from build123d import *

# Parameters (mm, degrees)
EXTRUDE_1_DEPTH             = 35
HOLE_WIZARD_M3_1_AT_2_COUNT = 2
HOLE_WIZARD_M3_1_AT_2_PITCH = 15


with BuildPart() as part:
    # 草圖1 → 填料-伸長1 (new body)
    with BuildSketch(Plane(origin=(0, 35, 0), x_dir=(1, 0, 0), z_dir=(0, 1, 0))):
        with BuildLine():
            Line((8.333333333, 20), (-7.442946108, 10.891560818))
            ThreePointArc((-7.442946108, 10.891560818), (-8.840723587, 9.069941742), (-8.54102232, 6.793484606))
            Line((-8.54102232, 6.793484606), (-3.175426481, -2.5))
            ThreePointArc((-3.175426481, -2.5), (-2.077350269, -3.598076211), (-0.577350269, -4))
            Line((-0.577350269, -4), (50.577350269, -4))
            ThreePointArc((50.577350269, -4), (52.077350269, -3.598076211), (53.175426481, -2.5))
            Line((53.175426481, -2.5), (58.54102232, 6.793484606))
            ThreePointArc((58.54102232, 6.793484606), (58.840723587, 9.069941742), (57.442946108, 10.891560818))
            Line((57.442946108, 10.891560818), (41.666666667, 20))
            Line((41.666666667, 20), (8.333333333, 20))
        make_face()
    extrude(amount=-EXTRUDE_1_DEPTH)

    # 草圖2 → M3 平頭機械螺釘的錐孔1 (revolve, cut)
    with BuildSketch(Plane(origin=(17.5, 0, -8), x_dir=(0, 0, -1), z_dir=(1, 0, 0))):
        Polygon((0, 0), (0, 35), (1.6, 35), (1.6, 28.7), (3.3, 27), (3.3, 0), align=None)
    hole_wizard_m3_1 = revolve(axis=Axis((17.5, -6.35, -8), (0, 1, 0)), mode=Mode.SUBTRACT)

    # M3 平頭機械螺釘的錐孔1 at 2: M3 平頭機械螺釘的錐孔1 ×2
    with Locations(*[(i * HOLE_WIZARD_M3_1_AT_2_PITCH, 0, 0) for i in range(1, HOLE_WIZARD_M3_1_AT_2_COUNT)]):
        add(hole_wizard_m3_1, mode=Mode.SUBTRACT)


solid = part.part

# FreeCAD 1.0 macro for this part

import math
import FreeCAD as App
import Part
import Sketcher

V = App.Vector
Q = App.Units.Quantity


def add_polygon(sketch, points):
    """Adds a closed chain of lines whose ends are joined by coincident constraints."""
    first, n = sketch.GeometryCount, len(points)
    for a, b in zip(points, points[1:] + points[:1]):
        sketch.addGeometry(Part.LineSegment(App.Vector(*a, 0), App.Vector(*b, 0)), False)
    for i in range(n):
        sketch.addConstraint(Sketcher.Constraint("Coincident", first + i, 2, first + (i + 1) % n, 1))

doc = App.newDocument("Part")
body = doc.addObject("PartDesign::Body", "Body")

sketch1 = body.newObject("Sketcher::SketchObject", "Sketch")
sketch1.AttachmentSupport = (doc.getObject("XZ_Plane"), [""])
sketch1.MapMode = "FlatFace"
sketch1.AttachmentOffset = App.Placement(V(0, 0, -35), App.Rotation())
sketch1.addGeometry(Part.LineSegment(V(8.333333, -20, 0), V(-7.442946, -10.891561, 0)), False)
sketch1.addGeometry(Part.ArcOfCircle(Part.Circle(V(-5.942946, -8.293485, 0), V(0, 0, 1), 3), math.radians(150), math.radians(240)), False)
sketch1.addGeometry(Part.LineSegment(V(-8.541022, -6.793485, 0), V(-3.175426, 2.5, 0)), False)
sketch1.addGeometry(Part.ArcOfCircle(Part.Circle(V(-0.57735, 1, 0), V(0, 0, 1), 3), math.radians(90), math.radians(150)), False)
sketch1.addGeometry(Part.LineSegment(V(-0.57735, 4, 0), V(50.57735, 4, 0)), False)
sketch1.addGeometry(Part.ArcOfCircle(Part.Circle(V(50.57735, 1, 0), V(0, 0, 1), 3), math.radians(30), math.radians(90)), False)
sketch1.addGeometry(Part.LineSegment(V(53.175426, 2.5, 0), V(58.541022, -6.793485, 0)), False)
sketch1.addGeometry(Part.ArcOfCircle(Part.Circle(V(55.942946, -8.293485, 0), V(0, 0, 1), 3), math.radians(-60), math.radians(30)), False)
sketch1.addGeometry(Part.LineSegment(V(57.442946, -10.891561, 0), V(41.666667, -20, 0)), False)
sketch1.addGeometry(Part.LineSegment(V(41.666667, -20, 0), V(8.333333, -20, 0)), False)
sketch1.addConstraint(Sketcher.Constraint("Tangent", 0, 2, 1, 2))
sketch1.addConstraint(Sketcher.Constraint("Tangent", 1, 1, 2, 1))
sketch1.addConstraint(Sketcher.Constraint("Tangent", 2, 2, 3, 2))
sketch1.addConstraint(Sketcher.Constraint("Tangent", 3, 1, 4, 1))
sketch1.addConstraint(Sketcher.Constraint("Tangent", 4, 2, 5, 2))
sketch1.addConstraint(Sketcher.Constraint("Tangent", 5, 1, 6, 1))
sketch1.addConstraint(Sketcher.Constraint("Tangent", 6, 2, 7, 2))
sketch1.addConstraint(Sketcher.Constraint("Tangent", 7, 1, 8, 1))
sketch1.addConstraint(Sketcher.Constraint("Coincident", 8, 2, 9, 1))
sketch1.addConstraint(Sketcher.Constraint("Coincident", 9, 2, 0, 1))
sketch1.addConstraint(Sketcher.Constraint("Horizontal", 4))
sketch1.addConstraint(Sketcher.Constraint("Horizontal", 9))
sketch1.addConstraint(Sketcher.Constraint("Equal", 1, 3))
sketch1.addConstraint(Sketcher.Constraint("Equal", 3, 5))
sketch1.addConstraint(Sketcher.Constraint("Equal", 5, 7))
sketch1.addConstraint(Sketcher.Constraint("Perpendicular", 0, 2))
sketch1.addConstraint(Sketcher.Constraint("Perpendicular", 6, 8))
sketch1.addConstraint(Sketcher.Constraint("Horizontal", 1, 3, 7, 3))
sketch1.addConstraint(Sketcher.Constraint("Horizontal", 2, 2, 5, 1))
sketch1.addConstraint(Sketcher.Constraint("Radius", 1, Q("3 mm")))
sketch1.addConstraint(Sketcher.Constraint("Angle", 0, Q("150 deg")))
sketch1.addConstraint(Sketcher.Constraint("DistanceY", -1, 1, 3, 3, Q("1 mm")))
sketch1.addConstraint(Sketcher.Constraint("DistanceY", 8, 2, -1, 1, Q("20 mm")))
sketch1.addConstraint(Sketcher.Constraint("DistanceX", 4, 1, 4, 2, Q("51.154701 mm")))
sketch1.addConstraint(Sketcher.Constraint("Distance", 0, Q("18.216878 mm")))
sketch1.addConstraint(Sketcher.Constraint("DistanceX", 3, 3, -1, 1, Q("0.57735 mm")))
pad1 = body.newObject("PartDesign::Pad", "Pad")
pad1.Profile = sketch1
pad1.Length = 35

sketch2 = body.newObject("Sketcher::SketchObject", "Sketch001")
sketch2.AttachmentSupport = (doc.getObject("YZ_Plane"), [""])
sketch2.MapMode = "FlatFace"
sketch2.AttachmentOffset = App.Placement(V(0, 0, 17.5), App.Rotation())
add_polygon(sketch2, [(35, -8), (0, -8), (0, -11.3), (27, -11.3), (28.7, -9.6), (35, -9.6)])
sketch2.addGeometry(Part.LineSegment(V(0, -8, 0), V(35, -8, 0)), True)
sketch2.addConstraint(Sketcher.Constraint("Horizontal", 0))
sketch2.addConstraint(Sketcher.Constraint("Vertical", 1))
sketch2.addConstraint(Sketcher.Constraint("Horizontal", 2))
sketch2.addConstraint(Sketcher.Constraint("Horizontal", 4))
sketch2.addConstraint(Sketcher.Constraint("Vertical", 5))
sketch2.addConstraint(Sketcher.Constraint("Horizontal", 6))
sketch2.addConstraint(Sketcher.Constraint("Coincident", 6, 1, 0, 2))
sketch2.addConstraint(Sketcher.Constraint("PointOnObject", 0, 2, -2))
sketch2.addConstraint(Sketcher.Constraint("Vertical", 4, 2, 6, 2))
sketch2.addConstraint(Sketcher.Constraint("DistanceX", 0, 2, 0, 1, Q("35 mm")))
sketch2.addConstraint(Sketcher.Constraint("DistanceX", 2, 1, 2, 2, Q("27 mm")))
sketch2.addConstraint(Sketcher.Constraint("Angle", 3, Q("45 deg")))
sketch2.addConstraint(Sketcher.Constraint("DistanceX", 4, 1, 4, 2, Q("6.3 mm")))
sketch2.addConstraint(Sketcher.Constraint("DistanceY", 1, 2, 1, 1, Q("3.3 mm")))
sketch2.addConstraint(Sketcher.Constraint("DistanceY", 0, 2, -1, 1, Q("8 mm")))
groove = body.newObject("PartDesign::Groove", "Groove")
groove.Profile = sketch2
groove.ReferenceAxis = (sketch2, ["Axis0"])
groove.Angle = 360
doc.recompute()

linearpattern = body.newObject("PartDesign::LinearPattern", "LinearPattern")
linearpattern.Originals = [groove]
linearpattern.Direction = (doc.getObject("X_Axis"), [""])
linearpattern.Mode = "offset"
linearpattern.Offset = 15
linearpattern.Occurrences = 2
body.Tip = linearpattern

doc.recompute()
